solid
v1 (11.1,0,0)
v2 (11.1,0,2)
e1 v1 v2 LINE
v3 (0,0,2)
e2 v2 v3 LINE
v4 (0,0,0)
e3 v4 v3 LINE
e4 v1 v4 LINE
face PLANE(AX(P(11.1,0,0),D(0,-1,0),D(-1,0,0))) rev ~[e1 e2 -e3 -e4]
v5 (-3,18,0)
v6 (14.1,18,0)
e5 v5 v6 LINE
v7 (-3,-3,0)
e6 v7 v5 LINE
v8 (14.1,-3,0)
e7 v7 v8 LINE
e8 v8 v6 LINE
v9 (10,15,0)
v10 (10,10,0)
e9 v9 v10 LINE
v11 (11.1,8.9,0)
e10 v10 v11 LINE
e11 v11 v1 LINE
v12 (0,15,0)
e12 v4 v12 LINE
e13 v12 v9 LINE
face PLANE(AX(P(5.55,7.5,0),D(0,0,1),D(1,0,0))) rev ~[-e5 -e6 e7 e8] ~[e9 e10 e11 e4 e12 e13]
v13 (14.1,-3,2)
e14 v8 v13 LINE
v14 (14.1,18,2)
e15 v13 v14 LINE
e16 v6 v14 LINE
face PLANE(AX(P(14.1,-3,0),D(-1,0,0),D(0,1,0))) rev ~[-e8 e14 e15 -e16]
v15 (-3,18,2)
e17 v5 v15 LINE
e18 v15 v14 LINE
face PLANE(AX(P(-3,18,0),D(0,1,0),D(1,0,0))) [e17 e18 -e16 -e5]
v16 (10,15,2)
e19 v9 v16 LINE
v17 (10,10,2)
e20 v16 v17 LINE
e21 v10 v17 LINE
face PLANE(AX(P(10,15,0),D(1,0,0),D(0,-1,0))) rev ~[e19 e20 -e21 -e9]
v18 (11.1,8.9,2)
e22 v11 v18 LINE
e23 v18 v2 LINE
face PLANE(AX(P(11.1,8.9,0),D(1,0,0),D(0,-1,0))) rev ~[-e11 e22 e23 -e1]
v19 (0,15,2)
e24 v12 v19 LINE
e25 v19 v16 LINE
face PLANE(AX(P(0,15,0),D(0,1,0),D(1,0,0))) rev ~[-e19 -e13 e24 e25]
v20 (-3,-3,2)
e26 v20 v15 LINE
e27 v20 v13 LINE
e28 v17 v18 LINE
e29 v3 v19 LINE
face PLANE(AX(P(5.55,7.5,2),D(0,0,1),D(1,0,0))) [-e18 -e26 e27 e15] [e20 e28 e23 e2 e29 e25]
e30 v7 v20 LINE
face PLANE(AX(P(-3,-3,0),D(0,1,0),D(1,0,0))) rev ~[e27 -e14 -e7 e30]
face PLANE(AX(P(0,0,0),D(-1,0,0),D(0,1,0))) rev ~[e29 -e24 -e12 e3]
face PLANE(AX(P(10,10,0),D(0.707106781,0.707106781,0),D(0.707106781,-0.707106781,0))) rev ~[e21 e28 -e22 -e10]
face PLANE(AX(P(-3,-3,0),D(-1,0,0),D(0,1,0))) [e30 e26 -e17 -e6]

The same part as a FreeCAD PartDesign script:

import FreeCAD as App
import Part
import Sketcher
Q = App.Units.Quantity


def add_polygon(sketch, points):
    """Adds a closed chain of lines whose ends are joined by coincident constraints."""
    first, n = sketch.GeometryCount, len(points)
    for a, b in zip(points, points[1:] + points[:1]):
        sketch.addGeometry(Part.LineSegment(App.Vector(*a, 0), App.Vector(*b, 0)), False)
    for i in range(n):
        sketch.addConstraint(Sketcher.Constraint("Coincident", first + i, 2, first + (i + 1) % n, 1))

doc = App.newDocument("Part")
params = doc.addObject("Spreadsheet::Sheet", "Params")
for row, (alias, value) in enumerate([
    ("sketch1_width", "10 mm"),
    ("sketch1_height", "21 mm"),
    ("sketch1_height2", "15 mm"),
    ("sketch1_height3", "5 mm"),
    ("sketch1_width2", "17.1 mm"),
    ("pad1_length", "2 mm"),
], start=1):
    params.set(f"A{row}", alias)
    params.set(f"B{row}", "=" + value)
    params.setAlias(f"B{row}", alias)

body = doc.addObject("PartDesign::Body", "Body")

# Sketch on XY plane
sketch1 = doc.addObject("Sketcher::SketchObject", "Sketch")
body.addObject(sketch1)
sketch1.AttachmentSupport = (doc.XY_Plane, [""])
sketch1.MapMode = "FlatFace"
add_polygon(sketch1, [(-3, 18), (-3, -3), (14.1, -3), (14.1, 18)])  # lines 0-3
add_polygon(sketch1, [(0, 0), (0, 15), (10, 15), (10, 10), (11.1, 8.9), (11.1, 0)])  # lines 4-9
sketch1.addConstraint([
    Sketcher.Constraint("Vertical", 0),
    Sketcher.Constraint("Horizontal", 1),
    Sketcher.Constraint("Vertical", 2),
    Sketcher.Constraint("Horizontal", 3),
    Sketcher.Constraint("Vertical", 4),
    Sketcher.Constraint("Horizontal", 5),
    Sketcher.Constraint("Vertical", 6),
    Sketcher.Constraint("Vertical", 8),
    Sketcher.Constraint("Horizontal", 9),
    Sketcher.Constraint("Coincident", 9, 2, -1, 1),
    Sketcher.Constraint("DistanceX", 5, 1, 5, 2, 10.0),
    Sketcher.Constraint("DistanceY", 0, 2, 0, 1, 21.0),
    Sketcher.Constraint("DistanceY", 4, 1, 4, 2, 15.0),
    Sketcher.Constraint("DistanceY", 6, 2, 6, 1, 5.0),
    Sketcher.Constraint("Angle", 7, Q("-45 deg")),
    Sketcher.Constraint("DistanceX", 1, 1, 1, 2, 17.1),
    Sketcher.Constraint("DistanceX", 9, 2, 9, 1, 11.1),
    Sketcher.Constraint("DistanceX", 0, 2, -1, 1, 3.0),
    Sketcher.Constraint("DistanceY", 0, 2, -1, 1, 3.0),
])
sketch1.setExpression("Constraints[20]", "Params.sketch1_width")
sketch1.setExpression("Constraints[21]", "Params.sketch1_height")
sketch1.setExpression("Constraints[22]", "Params.sketch1_height2")
sketch1.setExpression("Constraints[23]", "Params.sketch1_height3")
sketch1.setExpression("Constraints[25]", "Params.sketch1_width2")
pad1 = doc.addObject("PartDesign::Pad", "Pad")
body.addObject(pad1)
pad1.Profile = sketch1
pad1.setExpression("Length", "Params.pad1_length")

doc.recompute()
